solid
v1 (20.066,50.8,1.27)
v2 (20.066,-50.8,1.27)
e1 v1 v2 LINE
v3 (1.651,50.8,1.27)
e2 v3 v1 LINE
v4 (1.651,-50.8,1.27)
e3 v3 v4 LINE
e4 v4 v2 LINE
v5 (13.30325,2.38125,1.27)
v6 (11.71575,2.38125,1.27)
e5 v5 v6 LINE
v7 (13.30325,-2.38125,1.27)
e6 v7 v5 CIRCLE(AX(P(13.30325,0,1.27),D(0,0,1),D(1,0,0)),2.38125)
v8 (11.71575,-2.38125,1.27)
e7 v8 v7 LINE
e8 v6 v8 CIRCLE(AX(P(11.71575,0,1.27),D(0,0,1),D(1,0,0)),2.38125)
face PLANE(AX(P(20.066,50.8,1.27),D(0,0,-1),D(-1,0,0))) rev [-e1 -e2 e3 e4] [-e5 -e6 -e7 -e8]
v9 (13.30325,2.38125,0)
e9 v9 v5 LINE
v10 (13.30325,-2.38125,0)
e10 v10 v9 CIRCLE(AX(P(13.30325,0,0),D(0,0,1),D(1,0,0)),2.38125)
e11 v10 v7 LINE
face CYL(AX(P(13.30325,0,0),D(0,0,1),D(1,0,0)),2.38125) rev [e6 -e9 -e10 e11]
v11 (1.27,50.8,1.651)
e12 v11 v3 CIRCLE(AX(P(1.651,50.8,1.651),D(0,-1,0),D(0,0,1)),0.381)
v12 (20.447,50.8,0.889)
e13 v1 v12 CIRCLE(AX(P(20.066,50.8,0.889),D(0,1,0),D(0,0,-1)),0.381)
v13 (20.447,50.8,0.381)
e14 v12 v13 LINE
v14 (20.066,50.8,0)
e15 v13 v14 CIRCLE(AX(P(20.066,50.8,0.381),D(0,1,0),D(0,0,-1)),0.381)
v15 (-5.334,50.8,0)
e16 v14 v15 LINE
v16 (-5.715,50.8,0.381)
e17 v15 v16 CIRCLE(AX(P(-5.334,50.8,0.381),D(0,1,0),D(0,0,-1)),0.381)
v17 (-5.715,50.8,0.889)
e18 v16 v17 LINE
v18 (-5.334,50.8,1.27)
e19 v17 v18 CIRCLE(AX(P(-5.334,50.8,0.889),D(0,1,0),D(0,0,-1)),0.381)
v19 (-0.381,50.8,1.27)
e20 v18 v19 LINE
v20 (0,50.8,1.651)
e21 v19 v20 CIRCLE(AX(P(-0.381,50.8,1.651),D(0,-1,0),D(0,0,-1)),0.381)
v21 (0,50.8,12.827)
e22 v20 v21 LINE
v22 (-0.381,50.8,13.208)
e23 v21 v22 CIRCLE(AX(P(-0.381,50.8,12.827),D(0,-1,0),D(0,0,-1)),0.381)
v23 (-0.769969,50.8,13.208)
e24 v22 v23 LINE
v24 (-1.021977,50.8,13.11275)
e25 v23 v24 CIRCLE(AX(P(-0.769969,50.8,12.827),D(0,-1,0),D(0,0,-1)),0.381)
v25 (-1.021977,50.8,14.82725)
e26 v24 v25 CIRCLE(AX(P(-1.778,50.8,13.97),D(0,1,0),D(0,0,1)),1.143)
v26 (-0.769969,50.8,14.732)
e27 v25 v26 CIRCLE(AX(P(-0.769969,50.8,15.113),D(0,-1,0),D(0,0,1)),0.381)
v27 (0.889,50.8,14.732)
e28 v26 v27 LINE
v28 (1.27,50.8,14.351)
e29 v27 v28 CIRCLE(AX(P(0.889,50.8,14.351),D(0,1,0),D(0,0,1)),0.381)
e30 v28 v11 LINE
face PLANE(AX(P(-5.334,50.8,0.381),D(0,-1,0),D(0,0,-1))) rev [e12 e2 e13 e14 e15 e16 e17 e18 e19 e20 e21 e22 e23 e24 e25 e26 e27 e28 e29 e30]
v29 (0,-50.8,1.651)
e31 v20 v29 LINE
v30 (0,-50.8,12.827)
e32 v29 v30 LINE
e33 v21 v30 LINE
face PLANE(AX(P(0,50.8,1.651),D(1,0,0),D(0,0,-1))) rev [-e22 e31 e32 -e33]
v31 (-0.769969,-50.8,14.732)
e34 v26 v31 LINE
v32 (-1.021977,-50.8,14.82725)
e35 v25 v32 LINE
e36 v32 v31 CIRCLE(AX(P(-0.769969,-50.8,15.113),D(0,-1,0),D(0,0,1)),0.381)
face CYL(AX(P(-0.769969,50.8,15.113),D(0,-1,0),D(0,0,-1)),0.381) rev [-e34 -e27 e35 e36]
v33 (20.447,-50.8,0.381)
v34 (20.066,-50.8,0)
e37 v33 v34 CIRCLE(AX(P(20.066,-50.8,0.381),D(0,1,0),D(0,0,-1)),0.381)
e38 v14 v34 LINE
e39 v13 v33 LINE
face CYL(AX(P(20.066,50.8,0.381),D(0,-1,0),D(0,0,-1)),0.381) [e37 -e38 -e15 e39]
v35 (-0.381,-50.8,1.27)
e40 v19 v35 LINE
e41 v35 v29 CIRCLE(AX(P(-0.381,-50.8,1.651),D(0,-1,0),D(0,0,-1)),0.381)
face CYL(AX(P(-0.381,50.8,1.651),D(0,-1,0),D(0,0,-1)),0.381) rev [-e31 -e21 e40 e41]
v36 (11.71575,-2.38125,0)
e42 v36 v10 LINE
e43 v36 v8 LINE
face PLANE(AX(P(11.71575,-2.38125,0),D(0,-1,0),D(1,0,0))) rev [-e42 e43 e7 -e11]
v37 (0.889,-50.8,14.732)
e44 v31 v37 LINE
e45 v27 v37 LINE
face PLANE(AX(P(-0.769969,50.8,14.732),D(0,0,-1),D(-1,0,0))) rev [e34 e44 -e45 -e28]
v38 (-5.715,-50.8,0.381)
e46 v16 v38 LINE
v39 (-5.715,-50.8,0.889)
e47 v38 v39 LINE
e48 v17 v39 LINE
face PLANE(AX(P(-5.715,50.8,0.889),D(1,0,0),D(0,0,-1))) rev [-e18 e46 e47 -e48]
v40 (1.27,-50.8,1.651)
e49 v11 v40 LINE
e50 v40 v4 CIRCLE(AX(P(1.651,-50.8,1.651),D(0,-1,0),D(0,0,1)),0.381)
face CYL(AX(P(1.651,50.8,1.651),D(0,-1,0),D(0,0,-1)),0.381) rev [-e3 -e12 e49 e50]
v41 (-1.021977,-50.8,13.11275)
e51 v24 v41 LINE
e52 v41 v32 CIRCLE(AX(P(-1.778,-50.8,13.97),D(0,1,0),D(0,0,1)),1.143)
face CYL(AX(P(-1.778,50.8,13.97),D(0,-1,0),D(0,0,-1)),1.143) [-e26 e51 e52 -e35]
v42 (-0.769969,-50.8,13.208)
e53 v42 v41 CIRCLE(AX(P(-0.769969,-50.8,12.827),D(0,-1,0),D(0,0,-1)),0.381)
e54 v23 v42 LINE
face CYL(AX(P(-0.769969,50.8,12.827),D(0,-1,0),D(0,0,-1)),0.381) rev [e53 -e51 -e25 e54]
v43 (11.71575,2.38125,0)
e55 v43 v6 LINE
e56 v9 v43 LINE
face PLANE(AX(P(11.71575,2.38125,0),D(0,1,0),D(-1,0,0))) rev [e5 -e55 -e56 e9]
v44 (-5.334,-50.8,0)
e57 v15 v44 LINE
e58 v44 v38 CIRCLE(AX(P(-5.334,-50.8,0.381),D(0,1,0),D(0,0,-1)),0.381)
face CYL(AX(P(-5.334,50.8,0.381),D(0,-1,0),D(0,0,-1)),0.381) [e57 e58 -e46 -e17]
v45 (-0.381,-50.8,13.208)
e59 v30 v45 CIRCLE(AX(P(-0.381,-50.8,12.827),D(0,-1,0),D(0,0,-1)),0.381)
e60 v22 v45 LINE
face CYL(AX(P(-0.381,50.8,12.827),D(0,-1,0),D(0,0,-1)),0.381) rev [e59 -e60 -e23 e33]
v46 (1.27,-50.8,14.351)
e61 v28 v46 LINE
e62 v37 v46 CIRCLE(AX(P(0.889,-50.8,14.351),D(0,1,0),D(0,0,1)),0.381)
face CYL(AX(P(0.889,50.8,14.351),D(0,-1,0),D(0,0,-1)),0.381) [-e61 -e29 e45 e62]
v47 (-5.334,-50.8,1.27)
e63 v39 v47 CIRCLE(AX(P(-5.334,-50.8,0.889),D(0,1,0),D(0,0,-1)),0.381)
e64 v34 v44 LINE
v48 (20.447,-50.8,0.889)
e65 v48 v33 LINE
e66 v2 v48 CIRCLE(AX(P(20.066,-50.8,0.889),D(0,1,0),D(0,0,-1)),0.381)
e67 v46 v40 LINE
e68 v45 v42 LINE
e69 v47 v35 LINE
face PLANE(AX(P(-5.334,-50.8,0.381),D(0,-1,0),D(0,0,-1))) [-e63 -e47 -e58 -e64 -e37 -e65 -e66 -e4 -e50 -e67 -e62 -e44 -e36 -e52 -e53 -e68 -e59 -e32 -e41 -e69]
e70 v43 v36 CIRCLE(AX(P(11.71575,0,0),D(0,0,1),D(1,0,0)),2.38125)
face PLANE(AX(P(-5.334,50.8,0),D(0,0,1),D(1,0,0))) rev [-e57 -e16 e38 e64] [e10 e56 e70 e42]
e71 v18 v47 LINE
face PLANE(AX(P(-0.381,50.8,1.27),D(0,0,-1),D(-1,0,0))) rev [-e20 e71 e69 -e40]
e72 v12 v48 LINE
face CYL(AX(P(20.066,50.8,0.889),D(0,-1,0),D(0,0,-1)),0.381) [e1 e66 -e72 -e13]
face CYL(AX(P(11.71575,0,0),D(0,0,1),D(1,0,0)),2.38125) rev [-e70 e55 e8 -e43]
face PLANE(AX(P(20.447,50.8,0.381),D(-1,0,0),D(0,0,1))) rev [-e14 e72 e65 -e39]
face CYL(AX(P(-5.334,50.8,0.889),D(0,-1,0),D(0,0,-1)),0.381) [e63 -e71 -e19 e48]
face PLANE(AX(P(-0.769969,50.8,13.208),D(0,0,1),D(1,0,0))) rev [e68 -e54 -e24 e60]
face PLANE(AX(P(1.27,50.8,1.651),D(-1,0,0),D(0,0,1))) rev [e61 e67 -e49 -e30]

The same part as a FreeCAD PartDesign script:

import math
import FreeCAD as App
import Part
import Sketcher
Q = App.Units.Quantity

doc = App.newDocument("Part")
body = doc.addObject("PartDesign::Body", "Body")

sketch1 = body.newObject("Sketcher::SketchObject", "Sketch")
sketch1.AttachmentSupport = (doc.getObject("XZ_Plane"), [""])
sketch1.MapMode = "FlatFace"
sketch1.addGeometry(Part.LineSegment(App.Vector(20.066, 0, 0), App.Vector(-5.334, 0, 0)), False)
sketch1.addGeometry(Part.ArcOfCircle(Part.Circle(App.Vector(-5.334, 0.381, 0), App.Vector(0, 0, 1), 0.381), math.radians(180), math.radians(270)), False)
sketch1.addGeometry(Part.LineSegment(App.Vector(-5.715, 0.381, 0), App.Vector(-5.715, 0.889, 0)), False)
sketch1.addGeometry(Part.ArcOfCircle(Part.Circle(App.Vector(-5.334, 0.889, 0), App.Vector(0, 0, 1), 0.381), math.radians(90), math.radians(180)), False)
sketch1.addGeometry(Part.LineSegment(App.Vector(-5.334, 1.27, 0), App.Vector(-0.381, 1.27, 0)), False)
sketch1.addGeometry(Part.ArcOfCircle(Part.Circle(App.Vector(-0.381, 1.651, 0), App.Vector(0, 0, 1), 0.381), math.radians(-90), math.radians(0)), False)
sketch1.addGeometry(Part.LineSegment(App.Vector(0, 1.651, 0), App.Vector(0, 12.827, 0)), False)
sketch1.addGeometry(Part.ArcOfCircle(Part.Circle(App.Vector(-0.381, 12.827, 0), App.Vector(0, 0, 1), 0.381), math.radians(0), math.radians(90)), False)
sketch1.addGeometry(Part.LineSegment(App.Vector(-0.381, 13.208, 0), App.Vector(-0.769969, 13.208, 0)), False)
sketch1.addGeometry(Part.ArcOfCircle(Part.Circle(App.Vector(-0.769969, 12.827, 0), App.Vector(0, 0, 1), 0.381), math.radians(90), math.radians(131.409622)), False)
sketch1.addGeometry(Part.ArcOfCircle(Part.Circle(App.Vector(-1.778, 13.97, 0), App.Vector(0, 0, 1), 1.143), math.radians(48.590378), math.radians(311.409622)), False)
sketch1.addGeometry(Part.ArcOfCircle(Part.Circle(App.Vector(-0.769969, 15.113, 0), App.Vector(0, 0, 1), 0.381), math.radians(-131.409622), math.radians(-90)), False)
sketch1.addGeometry(Part.LineSegment(App.Vector(-0.769969, 14.732, 0), App.Vector(0.889, 14.732, 0)), False)
sketch1.addGeometry(Part.ArcOfCircle(Part.Circle(App.Vector(0.889, 14.351, 0), App.Vector(0, 0, 1), 0.381), math.radians(0), math.radians(90)), False)
sketch1.addGeometry(Part.LineSegment(App.Vector(1.27, 14.351, 0), App.Vector(1.27, 1.651, 0)), False)
sketch1.addGeometry(Part.ArcOfCircle(Part.Circle(App.Vector(1.651, 1.651, 0), App.Vector(0, 0, 1), 0.381), math.radians(180), math.radians(270)), False)
sketch1.addGeometry(Part.LineSegment(App.Vector(1.651, 1.27, 0), App.Vector(20.066, 1.27, 0)), False)
sketch1.addGeometry(Part.ArcOfCircle(Part.Circle(App.Vector(20.066, 0.889, 0), App.Vector(0, 0, 1), 0.381), math.radians(0), math.radians(90)), False)
sketch1.addGeometry(Part.LineSegment(App.Vector(20.447, 0.889, 0), App.Vector(20.447, 0.381, 0)), False)
sketch1.addGeometry(Part.ArcOfCircle(Part.Circle(App.Vector(20.066, 0.381, 0), App.Vector(0, 0, 1), 0.381), math.radians(-90), math.radians(0)), False)
sketch1.addConstraint(Sketcher.Constraint("Tangent", 0, 2, 1, 2))
sketch1.addConstraint(Sketcher.Constraint("Tangent", 1, 1, 2, 1))
sketch1.addConstraint(Sketcher.Constraint("Tangent", 2, 2, 3, 2))
sketch1.addConstraint(Sketcher.Constraint("Tangent", 3, 1, 4, 1))
sketch1.addConstraint(Sketcher.Constraint("Tangent", 4, 2, 5, 1))
sketch1.addConstraint(Sketcher.Constraint("Tangent", 5, 2, 6, 1))
sketch1.addConstraint(Sketcher.Constraint("Tangent", 6, 2, 7, 1))
sketch1.addConstraint(Sketcher.Constraint("Tangent", 7, 2, 8, 1))
sketch1.addConstraint(Sketcher.Constraint("Tangent", 8, 2, 9, 1))
sketch1.addConstraint(Sketcher.Constraint("Tangent", 9, 2, 10, 2))
sketch1.addConstraint(Sketcher.Constraint("Tangent", 10, 1, 11, 1))
sketch1.addConstraint(Sketcher.Constraint("Tangent", 11, 2, 12, 1))
sketch1.addConstraint(Sketcher.Constraint("Tangent", 12, 2, 13, 2))
sketch1.addConstraint(Sketcher.Constraint("Tangent", 13, 1, 14, 1))
sketch1.addConstraint(Sketcher.Constraint("Tangent", 14, 2, 15, 1))
sketch1.addConstraint(Sketcher.Constraint("Tangent", 15, 2, 16, 1))
sketch1.addConstraint(Sketcher.Constraint("Tangent", 16, 2, 17, 2))
sketch1.addConstraint(Sketcher.Constraint("Tangent", 17, 1, 18, 1))
sketch1.addConstraint(Sketcher.Constraint("Tangent", 18, 2, 19, 2))
sketch1.addConstraint(Sketcher.Constraint("Tangent", 19, 1, 0, 1))
sketch1.addConstraint(Sketcher.Constraint("Horizontal", 0))
sketch1.addConstraint(Sketcher.Constraint("Vertical", 2))
sketch1.addConstraint(Sketcher.Constraint("Horizontal", 4))
sketch1.addConstraint(Sketcher.Constraint("Vertical", 6))
sketch1.addConstraint(Sketcher.Constraint("Horizontal", 8))
sketch1.addConstraint(Sketcher.Constraint("Horizontal", 12))
sketch1.addConstraint(Sketcher.Constraint("Vertical", 14))
sketch1.addConstraint(Sketcher.Constraint("Horizontal", 16))
sketch1.addConstraint(Sketcher.Constraint("Vertical", 18))
sketch1.addConstraint(Sketcher.Constraint("Equal", 1, 3))
sketch1.addConstraint(Sketcher.Constraint("Equal", 3, 5))
sketch1.addConstraint(Sketcher.Constraint("Equal", 5, 7))
sketch1.addConstraint(Sketcher.Constraint("Equal", 7, 9))
sketch1.addConstraint(Sketcher.Constraint("Equal", 9, 11))
sketch1.addConstraint(Sketcher.Constraint("Equal", 11, 13))
sketch1.addConstraint(Sketcher.Constraint("Equal", 13, 15))
sketch1.addConstraint(Sketcher.Constraint("Equal", 15, 17))
sketch1.addConstraint(Sketcher.Constraint("Equal", 17, 19))
sketch1.addConstraint(Sketcher.Constraint("PointOnObject", 0, 2, -1))
sketch1.addConstraint(Sketcher.Constraint("PointOnObject", 5, 2, -2))
sketch1.addConstraint(Sketcher.Constraint("Horizontal", 5, 3, 15, 3))
sketch1.addConstraint(Sketcher.Constraint("Vertical", 9, 3, 11, 3))
sketch1.addConstraint(Sketcher.Constraint("DistanceX", 0, 2, 0, 1, Q("1 in")))
sketch1.addConstraint(Sketcher.Constraint("DistanceY", 14, 2, 14, 1, Q("0.5 in")))
sketch1.addConstraint(Sketcher.Constraint("Radius", 1, Q("0.015 in")))
sketch1.addConstraint(Sketcher.Constraint("Radius", 10, Q("0.045 in")))
sketch1.addConstraint(Sketcher.Constraint("DistanceY", 2, 1, 2, 2, Q("0.02 in")))
sketch1.addConstraint(Sketcher.Constraint("DistanceY", 6, 1, 6, 2, Q("0.44 in")))
sketch1.addConstraint(Sketcher.Constraint("DistanceX", 4, 1, 4, 2, Q("0.195 in")))
sketch1.addConstraint(Sketcher.Constraint("DistanceX", 16, 1, 16, 2, Q("0.725 in")))
sketch1.addConstraint(Sketcher.Constraint("DistanceX", 10, 3, -1, 1, Q("0.07 in")))
pad1 = body.newObject("PartDesign::Pad", "Pad")
pad1.Profile = sketch1
pad1.Length = Q("4 in")
pad1.Midplane = True

sketch2 = body.newObject("Sketcher::SketchObject", "Sketch001")
sketch2.AttachmentSupport = (doc.getObject("XY_Plane"), [""])
sketch2.MapMode = "FlatFace"
sketch2.AttachmentOffset = App.Placement(App.Vector(0, 0, 0.05 * 25.4), App.Rotation())
sketch2.addGeometry(Part.LineSegment(App.Vector(13.30325, 2.38125, 0), App.Vector(11.71575, 2.38125, 0)), False)
sketch2.addGeometry(Part.ArcOfCircle(Part.Circle(App.Vector(11.71575, 0, 0), App.Vector(0, 0, 1), 2.38125), math.radians(90), math.radians(270)), False)
sketch2.addGeometry(Part.LineSegment(App.Vector(11.71575, -2.38125, 0), App.Vector(13.30325, -2.38125, 0)), False)
sketch2.addGeometry(Part.ArcOfCircle(Part.Circle(App.Vector(13.30325, 0, 0), App.Vector(0, 0, 1), 2.38125), math.radians(-90), math.radians(90)), False)
sketch2.addConstraint(Sketcher.Constraint("Tangent", 0, 2, 1, 1))
sketch2.addConstraint(Sketcher.Constraint("Tangent", 1, 2, 2, 1))
sketch2.addConstraint(Sketcher.Constraint("Tangent", 2, 2, 3, 1))
sketch2.addConstraint(Sketcher.Constraint("Tangent", 3, 2, 0, 1))
sketch2.addConstraint(Sketcher.Constraint("Horizontal", 0))
sketch2.addConstraint(Sketcher.Constraint("Horizontal", 2))
sketch2.addConstraint(Sketcher.Constraint("PointOnObject", 1, 3, -1))
sketch2.addConstraint(Sketcher.Constraint("Radius", 1, Q("0.09375 in")))
sketch2.addConstraint(Sketcher.Constraint("DistanceX", 0, 2, 0, 1, Q("0.0625 in")))
sketch2.addConstraint(Sketcher.Constraint("DistanceX", -1, 1, 1, 3, 11.71575))
pocket1 = body.newObject("PartDesign::Pocket", "Pocket")
pocket1.Profile = sketch2
pocket1.Type = "ThroughAll"

doc.recompute()
